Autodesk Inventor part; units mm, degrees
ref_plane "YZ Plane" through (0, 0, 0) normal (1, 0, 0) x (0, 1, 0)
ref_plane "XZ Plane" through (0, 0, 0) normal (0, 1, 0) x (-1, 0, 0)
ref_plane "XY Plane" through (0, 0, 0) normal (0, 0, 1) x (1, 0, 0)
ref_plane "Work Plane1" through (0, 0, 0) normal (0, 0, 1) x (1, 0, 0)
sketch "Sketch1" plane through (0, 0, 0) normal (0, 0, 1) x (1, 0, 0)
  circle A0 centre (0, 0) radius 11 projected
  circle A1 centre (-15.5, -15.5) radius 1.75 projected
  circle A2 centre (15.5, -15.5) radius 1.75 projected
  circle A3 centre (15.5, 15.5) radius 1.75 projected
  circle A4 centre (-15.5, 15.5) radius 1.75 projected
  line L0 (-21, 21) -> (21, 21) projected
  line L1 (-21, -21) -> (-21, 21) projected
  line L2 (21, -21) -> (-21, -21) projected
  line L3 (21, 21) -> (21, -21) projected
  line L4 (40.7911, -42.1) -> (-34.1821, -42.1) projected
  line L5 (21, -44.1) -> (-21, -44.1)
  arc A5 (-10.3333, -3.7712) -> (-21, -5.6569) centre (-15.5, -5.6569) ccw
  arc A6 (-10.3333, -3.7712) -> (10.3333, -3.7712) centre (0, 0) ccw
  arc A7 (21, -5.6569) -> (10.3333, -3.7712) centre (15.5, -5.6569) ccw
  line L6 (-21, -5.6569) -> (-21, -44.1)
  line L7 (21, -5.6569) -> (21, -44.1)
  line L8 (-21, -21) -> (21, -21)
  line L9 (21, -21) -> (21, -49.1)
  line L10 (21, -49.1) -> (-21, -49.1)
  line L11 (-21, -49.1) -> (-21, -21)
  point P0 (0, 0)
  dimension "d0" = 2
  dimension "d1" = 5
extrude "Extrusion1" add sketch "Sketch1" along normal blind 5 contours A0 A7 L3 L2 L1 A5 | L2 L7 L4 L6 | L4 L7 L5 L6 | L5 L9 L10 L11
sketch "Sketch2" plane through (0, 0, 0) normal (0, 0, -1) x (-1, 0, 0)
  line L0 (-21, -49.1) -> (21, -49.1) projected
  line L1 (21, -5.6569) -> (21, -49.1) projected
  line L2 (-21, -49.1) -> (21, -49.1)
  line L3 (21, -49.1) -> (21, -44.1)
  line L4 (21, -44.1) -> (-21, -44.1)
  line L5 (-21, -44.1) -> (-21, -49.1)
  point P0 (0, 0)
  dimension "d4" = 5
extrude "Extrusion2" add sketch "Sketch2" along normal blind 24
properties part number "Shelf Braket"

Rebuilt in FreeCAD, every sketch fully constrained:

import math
import FreeCAD as App
import Part
import Sketcher

doc = App.newDocument("Part")
body = doc.addObject("PartDesign::Body", "Body")

# Sketch on XY plane
sketch1 = body.newObject("Sketcher::SketchObject", "Sketch")
sketch1.AttachmentSupport = (doc.getObject("XY_Plane"), [""])
sketch1.MapMode = "FlatFace"
sketch1.addGeometry([
    Part.ArcOfCircle(Part.Circle(App.Vector(0, 0, 0), App.Vector(0, 0, 1), 11), math.radians(-159.950142), math.radians(-20.049858)),  # 0
    Part.ArcOfCircle(Part.Circle(App.Vector(-15.5, -5.6569, 0), App.Vector(0, 0, 1), 5.500059), math.radians(20.050658), math.radians(180)),  # 1
    Part.LineSegment(App.Vector(-21, -5.6569, 0), App.Vector(-21, -49.1, 0)),  # 2
    Part.LineSegment(App.Vector(-21, -49.1, 0), App.Vector(21, -49.1, 0)),  # 3
    Part.LineSegment(App.Vector(21, -49.1, 0), App.Vector(21, -5.6569, 0)),  # 4
    Part.ArcOfCircle(Part.Circle(App.Vector(15.5, -5.6569, 0), App.Vector(0, 0, 1), 5.5), math.radians(0), math.radians(159.949342)),  # 5
    Part.Circle(App.Vector(-15.5, -15.5, 0), App.Vector(0, 0, 1), 1.75),  # 6
    Part.Circle(App.Vector(15.5, -15.5, 0), App.Vector(0, 0, 1), 1.75),  # 7
], False)
sketch1.addConstraint([
    Sketcher.Constraint("Tangent", 0, 1, 1, 1),
    Sketcher.Constraint("Tangent", 1, 2, 2, 1),
    Sketcher.Constraint("Coincident", 2, 2, 3, 1),
    Sketcher.Constraint("Coincident", 3, 2, 4, 1),
    Sketcher.Constraint("Tangent", 4, 2, 5, 1),
    Sketcher.Constraint("Tangent", 5, 2, 0, 2),
    Sketcher.Constraint("Vertical", 2),
    Sketcher.Constraint("Horizontal", 3),
    Sketcher.Constraint("Vertical", 4),
    Sketcher.Constraint("Coincident", 0, 3, -1, 1),
    Sketcher.Constraint("Equal", 1, 5),
    Sketcher.Constraint("Equal", 6, 7),
    Sketcher.Constraint("Symmetric", 6, 3, 7, 3, -2),
    Sketcher.Constraint("Horizontal", 1, 3, 5, 3),
    Sketcher.Constraint("Vertical", 1, 3, 6, 3),
    Sketcher.Constraint("Radius", 0, 11.0),
    Sketcher.Constraint("Diameter", 6, 3.5),
    Sketcher.Constraint("Radius", 1, 5.5),
    Sketcher.Constraint("DistanceX", 3, 1, 3, 2, 42.0),
    Sketcher.Constraint("DistanceY", 6, 3, -1, 1, 15.5),
    Sketcher.Constraint("DistanceY", 2, 2, -1, 1, 49.1),
])
pad1 = body.newObject("PartDesign::Pad", "Pad")
pad1.Profile = sketch1
pad1.Length = 5

# Sketch on XY plane
sketch2 = body.newObject("Sketcher::SketchObject", "Sketch001")
sketch2.AttachmentSupport = (doc.getObject("XY_Plane"), [""])
sketch2.MapMode = "FlatFace"
sketch2.addGeometry([
    Part.LineSegment(App.Vector(21, -44.1, 0), App.Vector(21, -49.1, 0)),
    Part.LineSegment(App.Vector(21, -49.1, 0), App.Vector(-21, -49.1, 0)),
    Part.LineSegment(App.Vector(-21, -49.1, 0), App.Vector(-21, -44.1, 0)),
    Part.LineSegment(App.Vector(-21, -44.1, 0), App.Vector(21, -44.1, 0)),
], False)
sketch2.addConstraint([
    Sketcher.Constraint("Coincident", 0, 2, 1, 1),
    Sketcher.Constraint("Coincident", 1, 2, 2, 1),
    Sketcher.Constraint("Coincident", 2, 2, 3, 1),
    Sketcher.Constraint("Coincident", 3, 2, 0, 1),
    Sketcher.Constraint("Vertical", 0),
    Sketcher.Constraint("Horizontal", 1),
    Sketcher.Constraint("Vertical", 2),
    Sketcher.Constraint("Horizontal", 3),
    Sketcher.Constraint("DistanceY", 0, 2, 0, 1, 5.0),
    Sketcher.Constraint("DistanceX", 1, 2, 1, 1, 42.0),
    Sketcher.Constraint("DistanceX", -1, 1, 0, 2, 21.0),
    Sketcher.Constraint("DistanceY", 0, 2, -1, 1, 49.1),
])
pad2 = body.newObject("PartDesign::Pad", "Pad001")
pad2.Profile = sketch2
pad2.Length = 24
pad2.Reversed = True

doc.recompute()
